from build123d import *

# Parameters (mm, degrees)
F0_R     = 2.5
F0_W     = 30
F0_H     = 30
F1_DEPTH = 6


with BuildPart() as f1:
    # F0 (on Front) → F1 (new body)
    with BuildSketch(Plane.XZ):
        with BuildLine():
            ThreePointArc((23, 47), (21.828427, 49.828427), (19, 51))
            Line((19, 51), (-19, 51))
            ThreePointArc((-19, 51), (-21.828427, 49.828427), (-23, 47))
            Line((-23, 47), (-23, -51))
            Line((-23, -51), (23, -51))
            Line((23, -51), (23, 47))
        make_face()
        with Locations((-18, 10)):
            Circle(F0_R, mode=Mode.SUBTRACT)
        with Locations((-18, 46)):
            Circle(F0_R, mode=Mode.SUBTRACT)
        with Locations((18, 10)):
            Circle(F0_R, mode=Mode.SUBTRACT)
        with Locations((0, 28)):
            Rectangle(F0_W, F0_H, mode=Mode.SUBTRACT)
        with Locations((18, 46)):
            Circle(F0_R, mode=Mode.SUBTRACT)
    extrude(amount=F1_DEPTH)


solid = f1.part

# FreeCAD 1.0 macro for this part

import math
import FreeCAD as App
import Part
import Sketcher
from FreeCAD import Vector
Q = App.Units.Quantity


def add_polygon(sketch, points):
    """Adds a closed chain of lines whose ends are joined by coincident constraints."""
    first, n = sketch.GeometryCount, len(points)
    for a, b in zip(points, points[1:] + points[:1]):
        sketch.addGeometry(Part.LineSegment(App.Vector(*a, 0), App.Vector(*b, 0)), False)
    for i in range(n):
        sketch.addConstraint(Sketcher.Constraint("Coincident", first + i, 2, first + (i + 1) % n, 1))

doc = App.newDocument("Part")
body = doc.addObject("PartDesign::Body", "Body")

# Sketch on XZ plane
sketch1 = body.newObject("Sketcher::SketchObject", "Sketch")
sketch1.AttachmentSupport = (doc.getObject("XZ_Plane"), [""])
sketch1.MapMode = "FlatFace"
sketch1.addGeometry(Part.ArcOfCircle(Part.Circle(Vector(19, 47, 0), Vector(0, 0, 1), 4), math.radians(0), math.radians(90)), False)  # 0
sketch1.addGeometry(Part.LineSegment(Vector(19, 51, 0), Vector(-19, 51, 0)), False)  # 1
sketch1.addGeometry(Part.ArcOfCircle(Part.Circle(Vector(-19, 47, 0), Vector(0, 0, 1), 4), math.radians(90), math.radians(180)), False)  # 2
sketch1.addGeometry(Part.LineSegment(Vector(-23, 47, 0), Vector(-23, -51, 0)), False)  # 3
sketch1.addGeometry(Part.LineSegment(Vector(-23, -51, 0), Vector(23, -51, 0)), False)  # 4
sketch1.addGeometry(Part.LineSegment(Vector(23, -51, 0), Vector(23, 47, 0)), False)  # 5
sketch1.addGeometry(Part.Circle(Vector(-18, 10, 0), Vector(0, 0, 1), 2.5), False)  # 6
sketch1.addGeometry(Part.Circle(Vector(18, 10, 0), Vector(0, 0, 1), 2.5), False)  # 7
sketch1.addGeometry(Part.Circle(Vector(-18, 46, 0), Vector(0, 0, 1), 2.5), False)  # 8
add_polygon(sketch1, [(15, 13), (-15, 13), (-15, 43), (15, 43)])  # lines 9-12
sketch1.addGeometry(Part.Circle(Vector(18, 46, 0), Vector(0, 0, 1), 2.5), False)  # 13
sketch1.addConstraint(Sketcher.Constraint("Tangent", 0, 2, 1, 1))
sketch1.addConstraint(Sketcher.Constraint("Tangent", 1, 2, 2, 1))
sketch1.addConstraint(Sketcher.Constraint("Tangent", 2, 2, 3, 1))
sketch1.addConstraint(Sketcher.Constraint("Coincident", 3, 2, 4, 1))
sketch1.addConstraint(Sketcher.Constraint("Coincident", 4, 2, 5, 1))
sketch1.addConstraint(Sketcher.Constraint("Tangent", 5, 2, 0, 1))
sketch1.addConstraint(Sketcher.Constraint("Horizontal", 1))
sketch1.addConstraint(Sketcher.Constraint("Vertical", 3))
sketch1.addConstraint(Sketcher.Constraint("Horizontal", 4))
sketch1.addConstraint(Sketcher.Constraint("Vertical", 5))
sketch1.addConstraint(Sketcher.Constraint("Horizontal", 9))
sketch1.addConstraint(Sketcher.Constraint("Vertical", 10))
sketch1.addConstraint(Sketcher.Constraint("Horizontal", 11))
sketch1.addConstraint(Sketcher.Constraint("Vertical", 12))
sketch1.addConstraint(Sketcher.Constraint("Equal", 0, 2))
sketch1.addConstraint(Sketcher.Constraint("Equal", 6, 7))
sketch1.addConstraint(Sketcher.Constraint("Equal", 7, 8))
sketch1.addConstraint(Sketcher.Constraint("Equal", 8, 13))
sketch1.addConstraint(Sketcher.Constraint("Symmetric", 6, 3, 7, 3, -2))
sketch1.addConstraint(Sketcher.Constraint("Symmetric", 8, 3, 13, 3, -2))
sketch1.addConstraint(Sketcher.Constraint("Vertical", 6, 3, 8, 3))
sketch1.addConstraint(Sketcher.Constraint("Equal", 11, 10))
sketch1.addConstraint(Sketcher.Constraint("Diameter", 6, Q("5 mm")))
sketch1.addConstraint(Sketcher.Constraint("Radius", 0, Q("4 mm")))
sketch1.addConstraint(Sketcher.Constraint("DistanceX", 1, 2, 1, 1, Q("38 mm")))
sketch1.addConstraint(Sketcher.Constraint("DistanceX", 9, 2, 9, 1, Q("30 mm")))
sketch1.addConstraint(Sketcher.Constraint("DistanceY", 3, 2, 3, 1, Q("98 mm")))
sketch1.addConstraint(Sketcher.Constraint("DistanceX", -1, 1, 0, 3, Q("19 mm")))
sketch1.addConstraint(Sketcher.Constraint("DistanceY", -1, 1, 0, 3, Q("47 mm")))
sketch1.addConstraint(Sketcher.Constraint("DistanceX", 6, 3, -1, 1, Q("18 mm")))
sketch1.addConstraint(Sketcher.Constraint("DistanceY", -1, 1, 6, 3, Q("10 mm")))
sketch1.addConstraint(Sketcher.Constraint("DistanceY", -1, 1, 8, 3, Q("46 mm")))
sketch1.addConstraint(Sketcher.Constraint("DistanceX", 9, 2, -1, 1, Q("15 mm")))
sketch1.addConstraint(Sketcher.Constraint("DistanceY", -1, 1, 9, 2, Q("13 mm")))
pad1 = body.newObject("PartDesign::Pad", "Pad")
pad1.Profile = sketch1
pad1.Length = 6

doc.recompute()
